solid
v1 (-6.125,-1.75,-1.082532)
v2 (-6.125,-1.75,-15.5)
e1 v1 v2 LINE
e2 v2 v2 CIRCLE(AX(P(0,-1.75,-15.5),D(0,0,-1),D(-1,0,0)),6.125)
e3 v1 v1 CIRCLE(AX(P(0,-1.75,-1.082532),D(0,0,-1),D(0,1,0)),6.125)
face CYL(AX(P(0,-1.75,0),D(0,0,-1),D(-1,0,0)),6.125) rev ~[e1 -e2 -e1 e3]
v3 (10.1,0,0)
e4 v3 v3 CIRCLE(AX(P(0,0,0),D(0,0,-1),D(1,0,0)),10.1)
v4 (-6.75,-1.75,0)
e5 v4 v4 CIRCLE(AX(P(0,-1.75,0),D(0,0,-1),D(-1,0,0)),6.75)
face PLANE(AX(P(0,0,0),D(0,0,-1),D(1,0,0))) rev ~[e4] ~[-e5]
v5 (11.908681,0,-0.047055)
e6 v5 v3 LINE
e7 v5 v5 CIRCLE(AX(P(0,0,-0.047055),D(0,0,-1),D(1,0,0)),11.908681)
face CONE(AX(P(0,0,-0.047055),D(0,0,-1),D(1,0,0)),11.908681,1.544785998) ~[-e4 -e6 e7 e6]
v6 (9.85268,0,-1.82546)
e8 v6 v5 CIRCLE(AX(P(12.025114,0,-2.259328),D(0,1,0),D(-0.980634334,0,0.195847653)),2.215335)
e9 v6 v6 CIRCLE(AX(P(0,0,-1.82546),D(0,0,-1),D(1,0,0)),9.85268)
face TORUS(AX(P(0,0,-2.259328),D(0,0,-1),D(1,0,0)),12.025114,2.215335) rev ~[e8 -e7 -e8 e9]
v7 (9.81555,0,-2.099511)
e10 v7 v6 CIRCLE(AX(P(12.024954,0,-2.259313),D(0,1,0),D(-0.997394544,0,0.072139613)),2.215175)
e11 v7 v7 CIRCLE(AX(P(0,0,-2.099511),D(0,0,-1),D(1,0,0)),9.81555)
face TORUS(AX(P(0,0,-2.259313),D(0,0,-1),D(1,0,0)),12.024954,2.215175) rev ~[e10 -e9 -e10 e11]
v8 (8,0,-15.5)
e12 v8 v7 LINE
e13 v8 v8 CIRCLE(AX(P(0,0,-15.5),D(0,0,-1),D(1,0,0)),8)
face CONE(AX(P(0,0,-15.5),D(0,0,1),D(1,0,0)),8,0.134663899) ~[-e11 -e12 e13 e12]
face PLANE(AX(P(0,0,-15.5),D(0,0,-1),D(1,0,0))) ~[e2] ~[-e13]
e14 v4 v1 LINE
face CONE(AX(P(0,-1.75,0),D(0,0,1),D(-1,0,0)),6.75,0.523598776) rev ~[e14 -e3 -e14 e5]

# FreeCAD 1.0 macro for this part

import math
import FreeCAD as App
import Part
import Sketcher

doc = App.newDocument("Part")
body = doc.addObject("PartDesign::Body", "Body")

sketch1 = body.newObject("Sketcher::SketchObject", "Sketch")
sketch1.AttachmentSupport = (doc.getObject("XZ_Plane"), [""])
sketch1.MapMode = "FlatFace"
sketch1.addGeometry([
    Part.LineSegment(App.Vector(10.1, 0, 0), App.Vector(0, 0, 0)),
    Part.LineSegment(App.Vector(0, 0, 0), App.Vector(0, -15.5, 0)),
    Part.LineSegment(App.Vector(0, -15.5, 0), App.Vector(8, -15.5, 0)),
    Part.LineSegment(App.Vector(8, -15.5, 0), App.Vector(9.82, -2.1, 0)),
    Part.ArcOfCircle(Part.Circle(App.Vector(12.02, -2.26, 0), App.Vector(0, 0, 1), 2.22), math.radians(168.71), math.radians(175.86)),
    Part.ArcOfCircle(Part.Circle(App.Vector(12.03, -2.26, 0), App.Vector(0, 0, 1), 2.22), math.radians(93), math.radians(169)),
    Part.LineSegment(App.Vector(11.91, -0.05, 0), App.Vector(10.1, 0, 0)),
], False)
sketch1.addConstraint([
    Sketcher.Constraint("Coincident", 0, 2, 1, 1),
    Sketcher.Constraint("Coincident", 1, 2, 2, 1),
    Sketcher.Constraint("Coincident", 2, 2, 3, 1),
    Sketcher.Constraint("Coincident", 3, 2, 4, 2),
    Sketcher.Constraint("Coincident", 4, 1, 5, 2),
    Sketcher.Constraint("Coincident", 5, 1, 6, 1),
    Sketcher.Constraint("Coincident", 6, 2, 0, 1),
    Sketcher.Constraint("Horizontal", 0),
    Sketcher.Constraint("Vertical", 1),
    Sketcher.Constraint("Horizontal", 2),
    Sketcher.Constraint("Coincident", 0, 2, -1, 1),
    Sketcher.Constraint("DistanceX", 2, 1, 2, 2, 8.0),
    Sketcher.Constraint("DistanceX", 0, 2, 0, 1, 10.1),
    Sketcher.Constraint("DistanceY", 1, 2, 1, 1, 15.5),
    Sketcher.Constraint("Radius", 4, 2.215175),
    Sketcher.Constraint("Radius", 5, 2.215335),
    Sketcher.Constraint("DistanceX", 4, 1, 5, 1, 2.056001),
    Sketcher.Constraint("DistanceY", 4, 3, 3, 2, 0.159802),
    Sketcher.Constraint("Distance", 3, 13.522919),
    Sketcher.Constraint("DistanceY", 5, 3, -1, 1, 2.259328),
    Sketcher.Constraint("DistanceX", -1, 1, 3, 2, 9.81555),
    Sketcher.Constraint("DistanceX", -1, 1, 4, 1, 9.85268),
])
revolution = body.newObject("PartDesign::Revolution", "Revolution")
revolution.Profile = sketch1
revolution.ReferenceAxis = (sketch1, ["V_Axis"])
revolution.Angle = 360

sketch2 = body.newObject("Sketcher::SketchObject", "Sketch001")
sketch2.AttachmentSupport = (doc.getObject("XY_Plane"), [""])
sketch2.MapMode = "FlatFace"
sketch2.addGeometry(Part.Circle(App.Vector(0, -2, 0), App.Vector(0, 0, 1), 6), False)
sketch2.addConstraint([
    Sketcher.Constraint("PointOnObject", 0, 3, -2),
    Sketcher.Constraint("Diameter", 0, 12.25),
    Sketcher.Constraint("DistanceY", 0, 3, -1, 1, 1.75),
])
doc.recompute()
hole = body.newObject("PartDesign::Hole", "Hole")
hole.Profile = sketch2
hole.ThreadType = "None"
hole.Diameter = 12.25
hole.DepthType = "ThroughAll"
hole.HoleCutType = "Countersink"
hole.HoleCutDiameter = 13.5
hole.HoleCutCountersinkAngle = 60

doc.recompute()
